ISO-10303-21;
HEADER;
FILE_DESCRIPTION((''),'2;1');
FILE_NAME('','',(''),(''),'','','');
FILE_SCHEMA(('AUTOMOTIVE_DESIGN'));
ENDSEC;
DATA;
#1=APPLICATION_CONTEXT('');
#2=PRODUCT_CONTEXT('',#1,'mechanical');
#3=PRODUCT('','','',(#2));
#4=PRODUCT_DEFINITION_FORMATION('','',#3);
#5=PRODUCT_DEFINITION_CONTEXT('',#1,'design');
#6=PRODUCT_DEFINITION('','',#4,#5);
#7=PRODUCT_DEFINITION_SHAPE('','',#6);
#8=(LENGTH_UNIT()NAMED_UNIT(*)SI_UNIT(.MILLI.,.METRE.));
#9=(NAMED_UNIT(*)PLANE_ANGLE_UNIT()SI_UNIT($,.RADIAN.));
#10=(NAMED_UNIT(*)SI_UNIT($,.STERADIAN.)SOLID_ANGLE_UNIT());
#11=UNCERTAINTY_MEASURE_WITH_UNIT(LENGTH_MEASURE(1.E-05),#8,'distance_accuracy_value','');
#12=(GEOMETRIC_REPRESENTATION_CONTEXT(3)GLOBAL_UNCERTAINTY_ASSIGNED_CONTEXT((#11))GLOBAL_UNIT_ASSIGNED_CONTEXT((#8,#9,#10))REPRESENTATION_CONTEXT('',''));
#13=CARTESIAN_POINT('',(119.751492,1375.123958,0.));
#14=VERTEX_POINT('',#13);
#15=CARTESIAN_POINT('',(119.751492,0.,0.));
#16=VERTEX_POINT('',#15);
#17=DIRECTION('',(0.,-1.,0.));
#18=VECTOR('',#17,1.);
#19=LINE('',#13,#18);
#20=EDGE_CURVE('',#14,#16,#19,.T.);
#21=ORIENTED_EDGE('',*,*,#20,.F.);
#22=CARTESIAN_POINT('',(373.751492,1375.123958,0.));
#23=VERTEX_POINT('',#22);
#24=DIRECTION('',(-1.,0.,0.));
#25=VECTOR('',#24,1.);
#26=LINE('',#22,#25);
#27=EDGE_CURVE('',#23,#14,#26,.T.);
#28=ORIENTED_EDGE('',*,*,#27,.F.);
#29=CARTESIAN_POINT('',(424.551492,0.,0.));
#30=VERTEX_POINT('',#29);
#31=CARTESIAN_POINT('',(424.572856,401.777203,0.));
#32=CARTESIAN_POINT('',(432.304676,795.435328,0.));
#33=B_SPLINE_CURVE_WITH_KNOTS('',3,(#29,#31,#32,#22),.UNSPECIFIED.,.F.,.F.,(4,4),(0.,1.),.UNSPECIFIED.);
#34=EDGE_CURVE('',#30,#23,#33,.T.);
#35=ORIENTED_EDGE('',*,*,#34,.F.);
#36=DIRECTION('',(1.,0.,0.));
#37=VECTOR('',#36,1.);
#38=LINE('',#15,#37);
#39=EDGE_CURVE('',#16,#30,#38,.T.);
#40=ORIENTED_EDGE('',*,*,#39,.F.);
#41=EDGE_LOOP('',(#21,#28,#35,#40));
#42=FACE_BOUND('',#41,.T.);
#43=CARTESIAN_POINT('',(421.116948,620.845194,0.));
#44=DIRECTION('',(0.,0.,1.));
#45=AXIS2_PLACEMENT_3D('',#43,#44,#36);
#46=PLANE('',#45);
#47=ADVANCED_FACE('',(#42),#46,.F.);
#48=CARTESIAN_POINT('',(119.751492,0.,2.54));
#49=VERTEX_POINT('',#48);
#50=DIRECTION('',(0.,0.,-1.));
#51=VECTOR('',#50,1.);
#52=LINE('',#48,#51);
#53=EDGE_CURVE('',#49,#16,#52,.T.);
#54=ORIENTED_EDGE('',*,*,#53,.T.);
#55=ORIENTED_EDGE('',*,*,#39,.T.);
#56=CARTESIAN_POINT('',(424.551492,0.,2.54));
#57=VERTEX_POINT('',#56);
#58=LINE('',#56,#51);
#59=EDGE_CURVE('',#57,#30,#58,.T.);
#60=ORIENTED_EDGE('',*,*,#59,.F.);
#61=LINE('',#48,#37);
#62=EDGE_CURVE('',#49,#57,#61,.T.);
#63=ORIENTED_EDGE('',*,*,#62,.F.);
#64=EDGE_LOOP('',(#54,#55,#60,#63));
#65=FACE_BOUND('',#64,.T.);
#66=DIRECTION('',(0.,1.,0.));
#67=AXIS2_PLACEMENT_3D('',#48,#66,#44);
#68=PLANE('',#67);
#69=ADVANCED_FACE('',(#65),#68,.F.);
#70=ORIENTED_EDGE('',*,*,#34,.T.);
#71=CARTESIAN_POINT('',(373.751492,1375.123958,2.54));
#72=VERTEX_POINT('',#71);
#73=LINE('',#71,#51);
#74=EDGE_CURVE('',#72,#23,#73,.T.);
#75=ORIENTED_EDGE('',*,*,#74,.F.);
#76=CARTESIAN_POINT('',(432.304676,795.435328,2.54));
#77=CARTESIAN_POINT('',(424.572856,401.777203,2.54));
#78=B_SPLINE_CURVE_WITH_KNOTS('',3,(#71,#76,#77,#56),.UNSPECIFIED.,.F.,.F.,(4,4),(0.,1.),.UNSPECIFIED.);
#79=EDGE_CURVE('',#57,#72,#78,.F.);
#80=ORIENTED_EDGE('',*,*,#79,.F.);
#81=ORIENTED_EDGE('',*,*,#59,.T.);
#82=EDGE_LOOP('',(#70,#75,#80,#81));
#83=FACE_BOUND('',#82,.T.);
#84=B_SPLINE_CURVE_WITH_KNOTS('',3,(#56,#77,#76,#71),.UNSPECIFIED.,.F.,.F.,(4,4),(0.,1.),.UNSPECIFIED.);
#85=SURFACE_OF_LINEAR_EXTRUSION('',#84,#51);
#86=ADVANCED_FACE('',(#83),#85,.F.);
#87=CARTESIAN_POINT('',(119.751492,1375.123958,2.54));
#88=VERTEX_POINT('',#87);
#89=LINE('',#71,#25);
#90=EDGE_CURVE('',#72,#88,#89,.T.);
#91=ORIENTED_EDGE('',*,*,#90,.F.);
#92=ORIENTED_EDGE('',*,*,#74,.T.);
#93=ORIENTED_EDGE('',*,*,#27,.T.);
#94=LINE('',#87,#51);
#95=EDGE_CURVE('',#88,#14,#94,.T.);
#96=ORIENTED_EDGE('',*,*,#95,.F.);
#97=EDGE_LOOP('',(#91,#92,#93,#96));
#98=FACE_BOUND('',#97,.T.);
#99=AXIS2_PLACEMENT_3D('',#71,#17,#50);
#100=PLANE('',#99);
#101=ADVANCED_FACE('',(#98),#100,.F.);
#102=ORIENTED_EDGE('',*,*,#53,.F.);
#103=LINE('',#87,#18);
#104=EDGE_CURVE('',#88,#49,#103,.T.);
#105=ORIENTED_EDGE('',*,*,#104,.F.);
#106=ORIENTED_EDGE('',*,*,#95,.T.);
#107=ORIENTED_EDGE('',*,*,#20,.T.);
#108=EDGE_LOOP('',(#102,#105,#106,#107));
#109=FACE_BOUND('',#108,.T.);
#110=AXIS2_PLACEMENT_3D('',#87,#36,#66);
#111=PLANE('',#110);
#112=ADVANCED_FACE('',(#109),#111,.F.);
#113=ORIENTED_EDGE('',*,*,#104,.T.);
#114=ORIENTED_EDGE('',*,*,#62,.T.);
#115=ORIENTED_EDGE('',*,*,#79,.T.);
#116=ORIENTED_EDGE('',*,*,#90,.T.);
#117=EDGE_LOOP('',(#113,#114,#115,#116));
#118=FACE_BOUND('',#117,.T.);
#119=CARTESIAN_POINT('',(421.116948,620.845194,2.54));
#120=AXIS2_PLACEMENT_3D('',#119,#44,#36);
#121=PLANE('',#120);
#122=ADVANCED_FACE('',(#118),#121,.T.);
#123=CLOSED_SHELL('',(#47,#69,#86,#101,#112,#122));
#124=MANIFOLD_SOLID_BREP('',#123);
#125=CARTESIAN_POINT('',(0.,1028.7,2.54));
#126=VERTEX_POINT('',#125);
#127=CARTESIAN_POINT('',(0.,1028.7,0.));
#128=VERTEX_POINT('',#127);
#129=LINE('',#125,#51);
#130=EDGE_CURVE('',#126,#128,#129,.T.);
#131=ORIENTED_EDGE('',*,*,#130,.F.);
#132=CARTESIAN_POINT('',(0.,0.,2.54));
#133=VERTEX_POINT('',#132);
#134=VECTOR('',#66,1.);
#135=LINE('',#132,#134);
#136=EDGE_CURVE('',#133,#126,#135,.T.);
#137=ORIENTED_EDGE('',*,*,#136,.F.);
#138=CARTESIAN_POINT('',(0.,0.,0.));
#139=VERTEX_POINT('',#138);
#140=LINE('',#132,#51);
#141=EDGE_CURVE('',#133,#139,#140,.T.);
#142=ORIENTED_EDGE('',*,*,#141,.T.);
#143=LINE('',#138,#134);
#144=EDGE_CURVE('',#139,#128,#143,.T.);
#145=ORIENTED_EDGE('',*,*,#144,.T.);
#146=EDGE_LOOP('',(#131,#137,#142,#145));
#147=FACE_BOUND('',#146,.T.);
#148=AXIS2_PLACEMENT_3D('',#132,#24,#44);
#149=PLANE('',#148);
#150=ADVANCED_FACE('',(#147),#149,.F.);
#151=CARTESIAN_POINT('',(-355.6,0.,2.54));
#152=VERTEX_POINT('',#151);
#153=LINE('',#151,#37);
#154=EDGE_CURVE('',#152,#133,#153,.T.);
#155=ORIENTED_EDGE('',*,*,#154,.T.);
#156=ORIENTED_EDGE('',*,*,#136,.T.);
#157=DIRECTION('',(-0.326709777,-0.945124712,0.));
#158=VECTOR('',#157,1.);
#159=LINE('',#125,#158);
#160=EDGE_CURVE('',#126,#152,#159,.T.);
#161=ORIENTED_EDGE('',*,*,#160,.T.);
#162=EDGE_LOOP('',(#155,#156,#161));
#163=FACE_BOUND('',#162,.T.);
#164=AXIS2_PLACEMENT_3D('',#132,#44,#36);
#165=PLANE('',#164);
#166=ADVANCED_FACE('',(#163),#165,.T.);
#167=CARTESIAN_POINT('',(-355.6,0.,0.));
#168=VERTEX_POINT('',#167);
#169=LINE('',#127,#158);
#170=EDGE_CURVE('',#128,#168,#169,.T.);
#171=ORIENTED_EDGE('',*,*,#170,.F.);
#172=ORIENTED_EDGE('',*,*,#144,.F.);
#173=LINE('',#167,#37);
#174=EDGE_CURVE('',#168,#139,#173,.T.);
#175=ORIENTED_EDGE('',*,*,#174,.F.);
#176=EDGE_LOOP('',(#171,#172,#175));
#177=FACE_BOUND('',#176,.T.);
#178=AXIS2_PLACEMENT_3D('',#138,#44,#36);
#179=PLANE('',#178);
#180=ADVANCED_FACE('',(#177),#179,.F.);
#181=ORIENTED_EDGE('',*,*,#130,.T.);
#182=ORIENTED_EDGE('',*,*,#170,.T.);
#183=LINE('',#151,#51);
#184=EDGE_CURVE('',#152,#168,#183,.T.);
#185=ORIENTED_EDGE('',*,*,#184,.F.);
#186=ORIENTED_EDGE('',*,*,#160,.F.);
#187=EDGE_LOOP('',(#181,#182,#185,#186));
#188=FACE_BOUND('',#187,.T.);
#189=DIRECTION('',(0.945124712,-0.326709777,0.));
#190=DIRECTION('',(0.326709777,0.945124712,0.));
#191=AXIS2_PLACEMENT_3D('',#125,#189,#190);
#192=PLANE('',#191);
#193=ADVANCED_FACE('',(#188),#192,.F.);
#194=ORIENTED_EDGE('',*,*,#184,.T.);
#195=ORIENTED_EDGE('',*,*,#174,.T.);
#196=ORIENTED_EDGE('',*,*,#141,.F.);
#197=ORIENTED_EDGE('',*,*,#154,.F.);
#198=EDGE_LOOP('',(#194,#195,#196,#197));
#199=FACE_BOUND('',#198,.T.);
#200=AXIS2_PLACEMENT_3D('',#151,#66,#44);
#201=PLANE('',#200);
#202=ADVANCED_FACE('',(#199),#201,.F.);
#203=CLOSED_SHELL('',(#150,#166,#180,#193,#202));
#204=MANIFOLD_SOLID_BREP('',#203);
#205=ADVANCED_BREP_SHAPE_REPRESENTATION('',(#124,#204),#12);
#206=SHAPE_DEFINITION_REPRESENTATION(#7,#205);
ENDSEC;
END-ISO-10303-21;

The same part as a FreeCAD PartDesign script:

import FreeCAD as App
import Part
import Sketcher

V = App.Vector
Q = App.Units.Quantity

doc = App.newDocument("Part")
body = doc.addObject("PartDesign::Body", "Body")

# Sketch on XY plane
sketch1 = body.newObject("Sketcher::SketchObject", "Sketch")
sketch1.AttachmentSupport = (doc.getObject("XY_Plane"), [""])
sketch1.MapMode = "FlatFace"
sketch1.addGeometry([
    Part.LineSegment(V(0, 0, 0), V(0, 1029, 0)),
    Part.LineSegment(V(0, 1029, 0), V(-356, 0, 0)),
    Part.LineSegment(V(-356, 0, 0), V(0, 0, 0)),
], False)
sketch1.addConstraint([
    Sketcher.Constraint("Coincident", 0, 2, 1, 1),
    Sketcher.Constraint("Coincident", 1, 2, 2, 1),
    Sketcher.Constraint("Coincident", 2, 2, 0, 1),
    Sketcher.Constraint("Vertical", 0),
    Sketcher.Constraint("Horizontal", 2),
    Sketcher.Constraint("Coincident", 2, 2, -1, 1),
    Sketcher.Constraint("DistanceX", 2, 1, 2, 2, Q("14 in")),
    Sketcher.Constraint("DistanceY", 0, 1, 0, 2, Q("40.5 in")),
])
pad1 = body.newObject("PartDesign::Pad", "Pad")
pad1.Profile = sketch1
pad1.Length = Q("0.1 in")
body2 = doc.addObject("PartDesign::Body", "Body001")

# Sketch on XY plane
sketch2 = body2.newObject("Sketcher::SketchObject", "Sketch001")
sketch2.AttachmentSupport = (doc.getObject("XY_Plane001"), [""])
sketch2.MapMode = "FlatFace"
sketch2.addGeometry([
    Part.LineSegment(V(373.751492, 1375.123958, 0), V(119.751492, 1375.123958, 0)),
    Part.LineSegment(V(119.751492, 1375.123958, 0), V(119.751492, 0, 0)),
    Part.LineSegment(V(119.751492, 0, 0), V(424.551492, 0, 0)),
    Part.BSplineCurve([V(424.551492, 0, 0), V(424.572856, 401.777203, 0), V(432.304676, 795.435328, 0), V(373.751492, 1375.123958, 0)], [4, 4], [0, 1], False, 3, [1, 1, 1, 1], False),
], False)
sketch2.addConstraint([
    Sketcher.Constraint("Block", 3),
    Sketcher.Constraint("Coincident", 0, 2, 1, 1),
    Sketcher.Constraint("Coincident", 1, 2, 2, 1),
    Sketcher.Constraint("Coincident", 2, 2, 3, 1),
    Sketcher.Constraint("Coincident", 3, 2, 0, 1),
    Sketcher.Constraint("Horizontal", 0),
    Sketcher.Constraint("Vertical", 1),
    Sketcher.Constraint("Horizontal", 2),
    Sketcher.Constraint("DistanceX", 0, 2, 0, 1, Q("10 in")),
])
pad2 = body2.newObject("PartDesign::Pad", "Pad001")
pad2.Profile = sketch2
pad2.Length = Q("0.1 in")

doc.recompute()
